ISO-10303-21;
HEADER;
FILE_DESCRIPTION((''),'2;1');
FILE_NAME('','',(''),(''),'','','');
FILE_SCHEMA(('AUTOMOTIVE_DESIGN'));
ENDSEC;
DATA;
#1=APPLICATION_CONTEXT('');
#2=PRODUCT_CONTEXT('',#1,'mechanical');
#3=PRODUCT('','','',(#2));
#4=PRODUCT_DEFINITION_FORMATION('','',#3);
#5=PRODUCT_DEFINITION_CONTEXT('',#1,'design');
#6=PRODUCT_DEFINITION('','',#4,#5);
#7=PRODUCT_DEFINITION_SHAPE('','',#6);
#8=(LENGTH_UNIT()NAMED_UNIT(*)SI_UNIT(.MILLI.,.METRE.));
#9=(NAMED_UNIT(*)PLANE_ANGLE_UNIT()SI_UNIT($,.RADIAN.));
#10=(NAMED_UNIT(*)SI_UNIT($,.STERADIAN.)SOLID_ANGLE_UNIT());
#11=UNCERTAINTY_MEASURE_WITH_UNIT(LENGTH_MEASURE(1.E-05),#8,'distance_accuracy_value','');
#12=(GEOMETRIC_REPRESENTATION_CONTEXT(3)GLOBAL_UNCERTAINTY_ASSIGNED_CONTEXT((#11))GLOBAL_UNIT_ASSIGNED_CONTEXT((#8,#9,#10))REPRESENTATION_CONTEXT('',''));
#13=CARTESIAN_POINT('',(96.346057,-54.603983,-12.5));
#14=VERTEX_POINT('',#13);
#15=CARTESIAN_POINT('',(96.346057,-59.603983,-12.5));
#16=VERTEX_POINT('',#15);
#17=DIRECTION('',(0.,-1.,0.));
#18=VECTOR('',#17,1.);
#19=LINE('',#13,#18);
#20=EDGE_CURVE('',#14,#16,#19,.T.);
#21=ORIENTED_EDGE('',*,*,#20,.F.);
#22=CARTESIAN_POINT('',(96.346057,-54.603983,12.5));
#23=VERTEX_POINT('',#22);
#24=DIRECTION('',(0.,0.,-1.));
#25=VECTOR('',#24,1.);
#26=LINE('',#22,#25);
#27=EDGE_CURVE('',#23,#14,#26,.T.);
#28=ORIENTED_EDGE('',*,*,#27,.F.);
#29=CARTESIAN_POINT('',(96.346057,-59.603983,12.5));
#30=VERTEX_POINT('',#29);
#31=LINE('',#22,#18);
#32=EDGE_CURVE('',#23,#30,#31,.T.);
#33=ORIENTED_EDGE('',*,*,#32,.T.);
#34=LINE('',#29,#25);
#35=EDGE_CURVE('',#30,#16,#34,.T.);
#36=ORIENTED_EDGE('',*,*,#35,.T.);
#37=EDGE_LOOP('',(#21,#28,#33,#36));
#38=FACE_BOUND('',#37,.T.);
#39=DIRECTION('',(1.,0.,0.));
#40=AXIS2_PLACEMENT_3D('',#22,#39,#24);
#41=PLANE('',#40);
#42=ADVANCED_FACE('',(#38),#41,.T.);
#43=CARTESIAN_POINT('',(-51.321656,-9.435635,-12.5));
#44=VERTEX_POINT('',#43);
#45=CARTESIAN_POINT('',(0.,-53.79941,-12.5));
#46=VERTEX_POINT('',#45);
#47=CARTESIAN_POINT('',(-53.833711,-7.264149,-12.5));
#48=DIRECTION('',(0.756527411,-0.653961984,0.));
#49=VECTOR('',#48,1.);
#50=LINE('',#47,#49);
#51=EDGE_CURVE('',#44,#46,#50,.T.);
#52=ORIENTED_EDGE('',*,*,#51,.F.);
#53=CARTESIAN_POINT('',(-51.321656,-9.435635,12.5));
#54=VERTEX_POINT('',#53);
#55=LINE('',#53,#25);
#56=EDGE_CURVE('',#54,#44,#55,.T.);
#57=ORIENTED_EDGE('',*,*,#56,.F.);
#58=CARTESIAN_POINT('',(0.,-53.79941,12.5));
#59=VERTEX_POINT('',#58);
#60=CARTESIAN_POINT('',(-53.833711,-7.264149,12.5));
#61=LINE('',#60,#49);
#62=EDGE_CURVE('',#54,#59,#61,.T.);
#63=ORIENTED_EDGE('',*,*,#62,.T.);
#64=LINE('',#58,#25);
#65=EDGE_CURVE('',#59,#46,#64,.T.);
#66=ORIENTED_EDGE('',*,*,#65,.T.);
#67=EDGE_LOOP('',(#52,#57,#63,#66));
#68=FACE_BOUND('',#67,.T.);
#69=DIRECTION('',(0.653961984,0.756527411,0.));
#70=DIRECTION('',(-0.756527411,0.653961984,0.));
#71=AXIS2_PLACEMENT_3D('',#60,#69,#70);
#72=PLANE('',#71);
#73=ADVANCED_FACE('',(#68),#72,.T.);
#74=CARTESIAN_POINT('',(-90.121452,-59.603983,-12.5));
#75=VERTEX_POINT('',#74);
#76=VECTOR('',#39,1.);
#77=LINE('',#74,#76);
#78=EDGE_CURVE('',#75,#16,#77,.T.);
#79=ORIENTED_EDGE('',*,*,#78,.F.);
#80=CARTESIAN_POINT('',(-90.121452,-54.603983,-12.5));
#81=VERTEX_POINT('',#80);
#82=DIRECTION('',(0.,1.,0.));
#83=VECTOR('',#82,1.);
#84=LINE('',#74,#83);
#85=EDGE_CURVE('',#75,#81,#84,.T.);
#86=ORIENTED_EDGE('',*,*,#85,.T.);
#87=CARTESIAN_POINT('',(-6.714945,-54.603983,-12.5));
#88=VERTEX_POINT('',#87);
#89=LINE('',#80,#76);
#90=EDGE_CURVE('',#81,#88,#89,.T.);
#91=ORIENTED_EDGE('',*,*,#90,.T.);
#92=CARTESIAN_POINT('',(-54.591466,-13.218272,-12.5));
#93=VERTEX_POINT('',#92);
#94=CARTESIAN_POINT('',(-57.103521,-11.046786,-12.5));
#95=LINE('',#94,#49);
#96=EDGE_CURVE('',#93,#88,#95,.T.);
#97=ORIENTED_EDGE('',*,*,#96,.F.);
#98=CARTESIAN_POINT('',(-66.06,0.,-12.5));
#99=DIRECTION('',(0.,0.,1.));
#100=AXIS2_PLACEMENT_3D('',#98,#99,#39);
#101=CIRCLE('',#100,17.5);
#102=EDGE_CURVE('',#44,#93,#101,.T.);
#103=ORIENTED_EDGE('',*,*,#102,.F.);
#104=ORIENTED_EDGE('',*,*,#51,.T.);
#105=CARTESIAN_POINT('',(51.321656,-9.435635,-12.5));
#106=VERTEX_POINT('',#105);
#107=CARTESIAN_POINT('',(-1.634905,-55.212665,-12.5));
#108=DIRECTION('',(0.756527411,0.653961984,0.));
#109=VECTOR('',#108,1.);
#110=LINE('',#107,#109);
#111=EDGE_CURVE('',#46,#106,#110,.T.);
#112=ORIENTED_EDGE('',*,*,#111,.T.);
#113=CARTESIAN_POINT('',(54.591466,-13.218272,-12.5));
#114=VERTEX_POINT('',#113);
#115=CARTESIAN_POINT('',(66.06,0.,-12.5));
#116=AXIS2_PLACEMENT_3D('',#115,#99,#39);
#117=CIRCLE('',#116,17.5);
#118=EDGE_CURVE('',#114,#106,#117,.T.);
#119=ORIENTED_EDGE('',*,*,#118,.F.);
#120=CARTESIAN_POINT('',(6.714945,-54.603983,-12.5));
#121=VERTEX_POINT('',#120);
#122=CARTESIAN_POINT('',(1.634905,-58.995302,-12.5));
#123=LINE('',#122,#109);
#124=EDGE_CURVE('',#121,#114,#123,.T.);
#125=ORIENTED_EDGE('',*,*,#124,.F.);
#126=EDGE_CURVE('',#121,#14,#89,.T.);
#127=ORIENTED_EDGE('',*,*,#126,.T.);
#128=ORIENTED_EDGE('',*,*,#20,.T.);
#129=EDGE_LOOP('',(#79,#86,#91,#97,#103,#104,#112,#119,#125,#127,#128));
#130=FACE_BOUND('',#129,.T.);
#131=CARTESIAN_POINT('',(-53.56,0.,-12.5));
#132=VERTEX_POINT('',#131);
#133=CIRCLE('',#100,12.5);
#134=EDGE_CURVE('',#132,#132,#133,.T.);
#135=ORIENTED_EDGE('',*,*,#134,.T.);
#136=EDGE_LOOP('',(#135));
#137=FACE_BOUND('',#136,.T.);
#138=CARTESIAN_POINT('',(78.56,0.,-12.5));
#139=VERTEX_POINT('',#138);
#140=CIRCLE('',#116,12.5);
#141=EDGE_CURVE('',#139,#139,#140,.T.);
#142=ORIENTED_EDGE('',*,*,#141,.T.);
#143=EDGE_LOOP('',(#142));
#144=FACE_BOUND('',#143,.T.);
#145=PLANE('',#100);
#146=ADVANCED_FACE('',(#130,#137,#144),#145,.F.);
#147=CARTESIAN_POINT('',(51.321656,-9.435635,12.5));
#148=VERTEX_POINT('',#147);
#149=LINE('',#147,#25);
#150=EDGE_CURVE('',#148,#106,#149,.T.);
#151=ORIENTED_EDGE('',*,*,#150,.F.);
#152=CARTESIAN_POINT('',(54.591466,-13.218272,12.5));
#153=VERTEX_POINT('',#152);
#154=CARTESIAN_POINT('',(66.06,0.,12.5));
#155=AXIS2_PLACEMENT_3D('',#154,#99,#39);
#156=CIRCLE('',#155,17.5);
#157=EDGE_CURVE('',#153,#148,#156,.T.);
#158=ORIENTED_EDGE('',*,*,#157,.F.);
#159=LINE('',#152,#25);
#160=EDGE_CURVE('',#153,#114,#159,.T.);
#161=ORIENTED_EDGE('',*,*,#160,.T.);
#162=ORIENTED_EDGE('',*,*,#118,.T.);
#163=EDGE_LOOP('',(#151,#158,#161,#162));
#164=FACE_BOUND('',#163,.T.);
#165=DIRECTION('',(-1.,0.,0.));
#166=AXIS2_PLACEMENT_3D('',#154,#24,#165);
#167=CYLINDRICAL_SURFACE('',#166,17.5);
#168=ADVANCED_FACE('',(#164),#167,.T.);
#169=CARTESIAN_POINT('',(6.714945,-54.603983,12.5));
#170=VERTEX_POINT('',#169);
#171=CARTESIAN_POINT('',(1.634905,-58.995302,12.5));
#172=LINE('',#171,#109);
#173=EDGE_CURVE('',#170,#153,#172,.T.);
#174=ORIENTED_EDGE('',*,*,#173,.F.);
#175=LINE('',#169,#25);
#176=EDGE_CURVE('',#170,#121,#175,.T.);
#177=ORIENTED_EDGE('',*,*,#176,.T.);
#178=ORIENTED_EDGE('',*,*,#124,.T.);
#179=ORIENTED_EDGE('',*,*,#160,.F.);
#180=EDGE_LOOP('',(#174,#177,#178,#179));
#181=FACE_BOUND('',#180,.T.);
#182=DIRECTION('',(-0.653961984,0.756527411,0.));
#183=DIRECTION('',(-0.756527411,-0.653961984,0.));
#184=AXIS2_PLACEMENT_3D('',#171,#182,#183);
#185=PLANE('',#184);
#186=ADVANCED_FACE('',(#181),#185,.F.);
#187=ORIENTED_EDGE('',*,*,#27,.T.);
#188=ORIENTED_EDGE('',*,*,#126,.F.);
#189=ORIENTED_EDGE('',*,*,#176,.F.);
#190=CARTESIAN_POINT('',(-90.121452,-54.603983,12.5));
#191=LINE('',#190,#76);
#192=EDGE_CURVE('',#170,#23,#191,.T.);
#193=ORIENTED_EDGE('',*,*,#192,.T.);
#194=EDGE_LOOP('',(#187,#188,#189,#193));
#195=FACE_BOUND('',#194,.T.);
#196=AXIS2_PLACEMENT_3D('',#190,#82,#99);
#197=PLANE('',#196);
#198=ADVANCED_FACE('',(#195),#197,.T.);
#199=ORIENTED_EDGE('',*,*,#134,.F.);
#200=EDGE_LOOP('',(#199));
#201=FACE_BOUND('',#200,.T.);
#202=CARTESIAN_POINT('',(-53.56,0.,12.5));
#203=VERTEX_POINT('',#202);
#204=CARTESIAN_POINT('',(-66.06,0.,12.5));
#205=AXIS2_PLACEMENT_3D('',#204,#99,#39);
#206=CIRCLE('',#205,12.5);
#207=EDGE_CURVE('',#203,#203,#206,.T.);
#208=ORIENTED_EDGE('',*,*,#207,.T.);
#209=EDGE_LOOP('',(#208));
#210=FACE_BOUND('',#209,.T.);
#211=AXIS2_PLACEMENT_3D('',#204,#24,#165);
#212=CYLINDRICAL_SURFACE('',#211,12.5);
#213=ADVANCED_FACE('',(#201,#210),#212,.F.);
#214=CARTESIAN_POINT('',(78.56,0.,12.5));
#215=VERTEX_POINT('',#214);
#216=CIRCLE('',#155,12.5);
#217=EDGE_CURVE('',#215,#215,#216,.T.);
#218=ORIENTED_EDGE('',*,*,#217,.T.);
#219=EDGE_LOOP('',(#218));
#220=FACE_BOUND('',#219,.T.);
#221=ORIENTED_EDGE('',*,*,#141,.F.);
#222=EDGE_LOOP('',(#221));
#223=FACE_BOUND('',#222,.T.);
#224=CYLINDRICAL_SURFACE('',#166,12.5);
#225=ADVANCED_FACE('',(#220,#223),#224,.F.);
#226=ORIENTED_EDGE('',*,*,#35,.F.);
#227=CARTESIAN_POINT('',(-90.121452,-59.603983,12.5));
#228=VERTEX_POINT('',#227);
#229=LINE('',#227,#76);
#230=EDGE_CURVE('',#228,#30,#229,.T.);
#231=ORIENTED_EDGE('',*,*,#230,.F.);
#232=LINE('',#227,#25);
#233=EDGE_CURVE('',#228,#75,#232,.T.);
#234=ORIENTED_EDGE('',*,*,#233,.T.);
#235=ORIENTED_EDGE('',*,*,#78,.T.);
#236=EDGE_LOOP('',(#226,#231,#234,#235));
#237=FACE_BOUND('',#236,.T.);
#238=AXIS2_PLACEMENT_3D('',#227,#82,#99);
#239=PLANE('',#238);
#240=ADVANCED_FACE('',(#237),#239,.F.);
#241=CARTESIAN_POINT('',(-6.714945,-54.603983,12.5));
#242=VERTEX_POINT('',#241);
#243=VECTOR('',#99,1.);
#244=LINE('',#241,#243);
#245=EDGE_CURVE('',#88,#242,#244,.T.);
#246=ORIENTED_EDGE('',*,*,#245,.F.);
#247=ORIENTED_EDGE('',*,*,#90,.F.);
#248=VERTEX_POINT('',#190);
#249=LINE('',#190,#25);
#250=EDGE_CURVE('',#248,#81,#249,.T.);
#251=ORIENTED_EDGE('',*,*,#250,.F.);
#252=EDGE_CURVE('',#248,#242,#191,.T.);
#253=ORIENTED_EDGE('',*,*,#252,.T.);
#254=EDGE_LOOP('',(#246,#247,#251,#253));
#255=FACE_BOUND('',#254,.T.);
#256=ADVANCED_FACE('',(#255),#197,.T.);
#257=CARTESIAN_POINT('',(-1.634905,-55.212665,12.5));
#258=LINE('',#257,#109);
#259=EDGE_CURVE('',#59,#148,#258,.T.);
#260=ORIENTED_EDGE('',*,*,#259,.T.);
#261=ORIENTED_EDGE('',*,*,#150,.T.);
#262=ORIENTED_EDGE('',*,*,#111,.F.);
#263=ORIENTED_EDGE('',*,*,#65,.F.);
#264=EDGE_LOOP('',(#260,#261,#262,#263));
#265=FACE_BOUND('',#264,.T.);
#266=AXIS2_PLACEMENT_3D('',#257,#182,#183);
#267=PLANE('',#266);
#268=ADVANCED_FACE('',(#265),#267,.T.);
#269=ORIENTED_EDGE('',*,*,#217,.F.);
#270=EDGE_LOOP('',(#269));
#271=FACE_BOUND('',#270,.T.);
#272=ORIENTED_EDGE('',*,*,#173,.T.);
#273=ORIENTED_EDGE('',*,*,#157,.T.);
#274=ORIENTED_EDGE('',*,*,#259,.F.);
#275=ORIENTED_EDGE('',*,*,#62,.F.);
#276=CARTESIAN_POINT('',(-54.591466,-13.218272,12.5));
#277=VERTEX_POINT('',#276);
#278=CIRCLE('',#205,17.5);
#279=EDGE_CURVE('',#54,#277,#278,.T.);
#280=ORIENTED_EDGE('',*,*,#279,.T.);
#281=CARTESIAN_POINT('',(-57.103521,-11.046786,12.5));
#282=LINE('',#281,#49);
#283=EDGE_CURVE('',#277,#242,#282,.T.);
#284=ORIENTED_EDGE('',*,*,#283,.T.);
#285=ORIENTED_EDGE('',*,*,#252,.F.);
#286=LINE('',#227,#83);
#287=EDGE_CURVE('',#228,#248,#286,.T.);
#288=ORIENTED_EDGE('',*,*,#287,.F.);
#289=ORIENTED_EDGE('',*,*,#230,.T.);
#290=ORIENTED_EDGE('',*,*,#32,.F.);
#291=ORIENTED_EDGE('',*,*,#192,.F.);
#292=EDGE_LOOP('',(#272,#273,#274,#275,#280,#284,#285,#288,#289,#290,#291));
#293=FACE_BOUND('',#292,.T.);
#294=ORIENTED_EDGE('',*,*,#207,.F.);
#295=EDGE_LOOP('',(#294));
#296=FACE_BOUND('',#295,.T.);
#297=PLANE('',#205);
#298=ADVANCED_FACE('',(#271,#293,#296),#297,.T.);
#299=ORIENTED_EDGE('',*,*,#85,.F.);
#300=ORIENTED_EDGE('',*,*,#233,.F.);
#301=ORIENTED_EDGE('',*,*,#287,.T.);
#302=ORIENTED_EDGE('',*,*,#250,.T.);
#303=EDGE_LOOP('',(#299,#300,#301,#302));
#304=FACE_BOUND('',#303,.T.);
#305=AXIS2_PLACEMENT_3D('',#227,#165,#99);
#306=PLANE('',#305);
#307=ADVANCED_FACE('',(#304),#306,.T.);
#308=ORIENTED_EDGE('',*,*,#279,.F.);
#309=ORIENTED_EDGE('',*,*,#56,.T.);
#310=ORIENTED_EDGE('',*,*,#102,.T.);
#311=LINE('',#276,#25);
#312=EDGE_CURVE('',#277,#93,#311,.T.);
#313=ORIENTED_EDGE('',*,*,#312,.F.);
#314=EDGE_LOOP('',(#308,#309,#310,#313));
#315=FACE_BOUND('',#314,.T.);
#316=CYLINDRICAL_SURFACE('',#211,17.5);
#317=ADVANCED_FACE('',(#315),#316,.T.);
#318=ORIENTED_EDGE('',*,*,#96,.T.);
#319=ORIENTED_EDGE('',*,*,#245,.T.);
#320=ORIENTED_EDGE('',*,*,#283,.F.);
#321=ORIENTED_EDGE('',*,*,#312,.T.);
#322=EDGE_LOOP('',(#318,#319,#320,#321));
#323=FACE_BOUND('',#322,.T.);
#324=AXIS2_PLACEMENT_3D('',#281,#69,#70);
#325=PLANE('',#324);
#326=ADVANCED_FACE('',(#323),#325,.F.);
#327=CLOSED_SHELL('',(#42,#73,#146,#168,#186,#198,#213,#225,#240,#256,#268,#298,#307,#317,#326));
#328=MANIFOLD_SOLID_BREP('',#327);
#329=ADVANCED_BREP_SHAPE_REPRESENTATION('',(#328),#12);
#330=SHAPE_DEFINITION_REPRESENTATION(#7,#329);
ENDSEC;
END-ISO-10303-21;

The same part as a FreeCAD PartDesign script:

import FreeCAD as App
import Part
import Sketcher
from FreeCAD import Vector


def add_polygon(sketch, points):
    """Adds a closed chain of lines whose ends are joined by coincident constraints."""
    first, n = sketch.GeometryCount, len(points)
    for a, b in zip(points, points[1:] + points[:1]):
        sketch.addGeometry(Part.LineSegment(App.Vector(*a, 0), App.Vector(*b, 0)), False)
    for i in range(n):
        sketch.addConstraint(Sketcher.Constraint("Coincident", first + i, 2, first + (i + 1) % n, 1))

doc = App.newDocument("Part")
body = doc.addObject("PartDesign::Body", "Body")

# Sketch on XY plane
sketch1 = body.newObject("Sketcher::SketchObject", "Sketch")
sketch1.AttachmentSupport = (doc.getObject("XY_Plane"), [""])
sketch1.MapMode = "FlatFace"
sketch1.addGeometry(Part.Circle(Vector(-66.06, 0, 0), Vector(0, 0, 1), 17.5), False)
sketch1.addGeometry(Part.Circle(Vector(-66.06, 0, 0), Vector(0, 0, 1), 12.5), False)
sketch1.addConstraint(Sketcher.Constraint("Coincident", 1, 3, 0, 3))
sketch1.addConstraint(Sketcher.Constraint("PointOnObject", 0, 3, -1))
sketch1.addConstraint(Sketcher.Constraint("Diameter", 0, 35.0))
sketch1.addConstraint(Sketcher.Constraint("Diameter", 1, 25.0))
sketch1.addConstraint(Sketcher.Constraint("DistanceX", 0, 3, -1, 1, 66.06))
pad1 = body.newObject("PartDesign::Pad", "Pad")
pad1.Profile = sketch1
pad1.Length = 25
pad1.Midplane = True
body2 = doc.addObject("PartDesign::Body", "Body001")

# Sketch on XY plane
sketch2 = body2.newObject("Sketcher::SketchObject", "Sketch001")
sketch2.AttachmentSupport = (doc.getObject("XY_Plane001"), [""])
sketch2.MapMode = "FlatFace"
sketch2.addGeometry(Part.Circle(Vector(66.06, 0, 0), Vector(0, 0, 1), 17.5), False)
sketch2.addGeometry(Part.Circle(Vector(66.06, 0, 0), Vector(0, 0, 1), 12.5), False)
sketch2.addConstraint(Sketcher.Constraint("Coincident", 1, 3, 0, 3))
sketch2.addConstraint(Sketcher.Constraint("PointOnObject", 0, 3, -1))
sketch2.addConstraint(Sketcher.Constraint("Diameter", 0, 35.0))
sketch2.addConstraint(Sketcher.Constraint("Diameter", 1, 25.0))
sketch2.addConstraint(Sketcher.Constraint("DistanceX", -1, 1, 0, 3, 66.06))
pad2 = body2.newObject("PartDesign::Pad", "Pad001")
pad2.Profile = sketch2
pad2.Length = 25
pad2.Midplane = True
body.AllowCompound = True
doc.recompute()

boolean = body.newObject("PartDesign::Boolean", "Boolean")
boolean.Type = "Fuse"
boolean.addObjects([body2])

# Sketch on XY plane
sketch3 = body.newObject("Sketcher::SketchObject", "Sketch002")
sketch3.AttachmentSupport = (doc.getObject("XY_Plane"), [""])
sketch3.MapMode = "FlatFace"
add_polygon(sketch3, [(-53.833711, -7.264149), (-57.103521, -11.046786), (-6.714945, -54.603983), (-90.121452, -54.603983), (-90.121452, -59.603983), (-0.93076, -59.603983), (0, -60.408556), (0.93076, -59.603983), (96.346057, -59.603983), (96.346057, -54.603983), (6.714945, -54.603983), (56.960039, -11.170816), (53.690229, -7.388179), (0, -53.79941)])  # lines 0-13
sketch3.addConstraint(Sketcher.Constraint("Horizontal", 2))
sketch3.addConstraint(Sketcher.Constraint("Vertical", 3))
sketch3.addConstraint(Sketcher.Constraint("Horizontal", 4))
sketch3.addConstraint(Sketcher.Constraint("Horizontal", 7))
sketch3.addConstraint(Sketcher.Constraint("Vertical", 8))
sketch3.addConstraint(Sketcher.Constraint("Horizontal", 9))
sketch3.addConstraint(Sketcher.Constraint("PointOnObject", 5, 2, -2))
sketch3.addConstraint(Sketcher.Constraint("PointOnObject", 12, 2, -2))
sketch3.addConstraint(Sketcher.Constraint("DistanceY", 3, 2, 3, 1, 5.0))
sketch3.addConstraint(Sketcher.Constraint("DistanceY", 8, 1, 8, 2, 5.0))
sketch3.addConstraint(Sketcher.Constraint("Distance", 0, 5.0))
sketch3.addConstraint(Sketcher.Constraint("Distance", 11, 5.0))
sketch3.addConstraint(Sketcher.Constraint("DistanceY", 6, 2, 1, 2, 5.0))
sketch3.addConstraint(Sketcher.Constraint("DistanceX", 1, 2, 7, 2, 103.061002))
sketch3.addConstraint(Sketcher.Constraint("Distance", 1, 66.60509))
sketch3.addConstraint(Sketcher.Constraint("Distance", 10, 66.415432))
sketch3.addConstraint(Sketcher.Constraint("Distance", 12, 70.969311))
sketch3.addConstraint(Sketcher.Constraint("Distance", 13, 71.15897))
sketch3.addConstraint(Sketcher.Constraint("DistanceX", 2, 2, 2, 1, 83.406508))
sketch3.addConstraint(Sketcher.Constraint("DistanceX", 4, 1, 4, 2, 89.190693))
sketch3.addConstraint(Sketcher.Constraint("DistanceX", 7, 1, 7, 2, 95.415297))
sketch3.addConstraint(Sketcher.Constraint("DistanceX", 9, 2, 9, 1, 89.631112))
sketch3.addConstraint(Sketcher.Constraint("DistanceX", 0, 2, -1, 1, 57.103521))
sketch3.addConstraint(Sketcher.Constraint("DistanceX", 4, 2, -1, 1, 0.93076))
sketch3.addConstraint(Sketcher.Constraint("DistanceX", -1, 1, 10, 2, 56.960039))
sketch3.addConstraint(Sketcher.Constraint("DistanceX", -1, 1, 11, 2, 53.690229))
sketch3.addConstraint(Sketcher.Constraint("DistanceY", 11, 2, -1, 1, 7.388179))
sketch3.addConstraint(Sketcher.Constraint("DistanceY", 5, 2, 0, 2, 49.36177))
pad3 = body.newObject("PartDesign::Pad", "Pad002")
pad3.Profile = sketch3
pad3.Length = 25
pad3.Midplane = True

# Sketch on XY plane
sketch4 = body.newObject("Sketcher::SketchObject", "Sketch003")
sketch4.AttachmentSupport = (doc.getObject("XY_Plane"), [""])
sketch4.MapMode = "FlatFace"
add_polygon(sketch4, [(-4.434769, -59.603983), (-4.434769, -64.385757), (4.610119, -64.385757), (4.610119, -59.603983)])  # lines 0-3
sketch4.addConstraint(Sketcher.Constraint("Vertical", 0))
sketch4.addConstraint(Sketcher.Constraint("Horizontal", 1))
sketch4.addConstraint(Sketcher.Constraint("Vertical", 2))
sketch4.addConstraint(Sketcher.Constraint("Horizontal", 3))
sketch4.addConstraint(Sketcher.Constraint("DistanceX", 1, 1, 1, 2, 9.044888))
sketch4.addConstraint(Sketcher.Constraint("DistanceY", 0, 2, 0, 1, 4.781774))
sketch4.addConstraint(Sketcher.Constraint("DistanceX", 0, 2, -1, 1, 4.434769))
sketch4.addConstraint(Sketcher.Constraint("DistanceY", 0, 2, -1, 1, 64.385757))
pocket1 = body.newObject("PartDesign::Pocket", "Pocket")
pocket1.Profile = sketch4
pocket1.Type = "ThroughAll"
pocket1.Midplane = True

doc.recompute()
